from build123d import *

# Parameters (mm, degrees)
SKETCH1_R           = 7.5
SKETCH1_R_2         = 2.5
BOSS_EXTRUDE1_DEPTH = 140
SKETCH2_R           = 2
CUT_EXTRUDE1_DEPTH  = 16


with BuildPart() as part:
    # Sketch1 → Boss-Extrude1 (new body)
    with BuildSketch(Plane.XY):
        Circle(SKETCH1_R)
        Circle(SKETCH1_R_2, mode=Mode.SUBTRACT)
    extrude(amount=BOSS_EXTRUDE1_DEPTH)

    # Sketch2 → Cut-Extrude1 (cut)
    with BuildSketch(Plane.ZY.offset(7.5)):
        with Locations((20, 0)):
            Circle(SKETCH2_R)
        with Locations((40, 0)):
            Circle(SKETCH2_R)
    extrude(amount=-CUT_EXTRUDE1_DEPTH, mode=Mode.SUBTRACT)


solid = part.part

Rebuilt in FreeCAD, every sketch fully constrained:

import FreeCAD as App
import Part
import Sketcher
from FreeCAD import Vector
Q = App.Units.Quantity

doc = App.newDocument("Part")
body = doc.addObject("PartDesign::Body", "Body")

sketch1 = doc.addObject("Sketcher::SketchObject", "Sketch")
body.addObject(sketch1)
sketch1.AttachmentSupport = (doc.XY_Plane, [""])
sketch1.MapMode = "FlatFace"
sketch1.addGeometry(Part.Circle(Vector(0, 0, 0), Vector(0, 0, 1), 7.5), False)
sketch1.addGeometry(Part.Circle(Vector(0, 0, 0), Vector(0, 0, 1), 2.5), False)
sketch1.addConstraint(Sketcher.Constraint("Coincident", 0, 3, -1, 1))
sketch1.addConstraint(Sketcher.Constraint("Coincident", 1, 3, -1, 1))
sketch1.addConstraint(Sketcher.Constraint("Diameter", 0, Q("15 mm")))
sketch1.addConstraint(Sketcher.Constraint("Diameter", 1, Q("5 mm")))
pad1 = doc.addObject("PartDesign::Pad", "Pad")
body.addObject(pad1)
pad1.Profile = sketch1
pad1.Length = 140

sketch2 = doc.addObject("Sketcher::SketchObject", "Sketch001")
body.addObject(sketch2)
sketch2.AttachmentSupport = (doc.YZ_Plane, [""])
sketch2.MapMode = "FlatFace"
sketch2.AttachmentOffset = App.Placement(Vector(0, 0, -7.5), App.Rotation())
sketch2.addGeometry(Part.Circle(Vector(0, 20, 0), Vector(0, 0, 1), 2), False)
sketch2.addGeometry(Part.Circle(Vector(0, 40, 0), Vector(0, 0, 1), 2), False)
sketch2.addConstraint(Sketcher.Constraint("Equal", 0, 1))
sketch2.addConstraint(Sketcher.Constraint("PointOnObject", 0, 3, -2))
sketch2.addConstraint(Sketcher.Constraint("PointOnObject", 1, 3, -2))
sketch2.addConstraint(Sketcher.Constraint("Diameter", 0, Q("4 mm")))
sketch2.addConstraint(Sketcher.Constraint("DistanceY", -1, 1, 0, 3, Q("20 mm")))
sketch2.addConstraint(Sketcher.Constraint("DistanceY", -1, 1, 1, 3, Q("40 mm")))
pocket1 = doc.addObject("PartDesign::Pocket", "Pocket")
body.addObject(pocket1)
pocket1.Profile = sketch2
pocket1.Length = 16
pocket1.Reversed = True

doc.recompute()
